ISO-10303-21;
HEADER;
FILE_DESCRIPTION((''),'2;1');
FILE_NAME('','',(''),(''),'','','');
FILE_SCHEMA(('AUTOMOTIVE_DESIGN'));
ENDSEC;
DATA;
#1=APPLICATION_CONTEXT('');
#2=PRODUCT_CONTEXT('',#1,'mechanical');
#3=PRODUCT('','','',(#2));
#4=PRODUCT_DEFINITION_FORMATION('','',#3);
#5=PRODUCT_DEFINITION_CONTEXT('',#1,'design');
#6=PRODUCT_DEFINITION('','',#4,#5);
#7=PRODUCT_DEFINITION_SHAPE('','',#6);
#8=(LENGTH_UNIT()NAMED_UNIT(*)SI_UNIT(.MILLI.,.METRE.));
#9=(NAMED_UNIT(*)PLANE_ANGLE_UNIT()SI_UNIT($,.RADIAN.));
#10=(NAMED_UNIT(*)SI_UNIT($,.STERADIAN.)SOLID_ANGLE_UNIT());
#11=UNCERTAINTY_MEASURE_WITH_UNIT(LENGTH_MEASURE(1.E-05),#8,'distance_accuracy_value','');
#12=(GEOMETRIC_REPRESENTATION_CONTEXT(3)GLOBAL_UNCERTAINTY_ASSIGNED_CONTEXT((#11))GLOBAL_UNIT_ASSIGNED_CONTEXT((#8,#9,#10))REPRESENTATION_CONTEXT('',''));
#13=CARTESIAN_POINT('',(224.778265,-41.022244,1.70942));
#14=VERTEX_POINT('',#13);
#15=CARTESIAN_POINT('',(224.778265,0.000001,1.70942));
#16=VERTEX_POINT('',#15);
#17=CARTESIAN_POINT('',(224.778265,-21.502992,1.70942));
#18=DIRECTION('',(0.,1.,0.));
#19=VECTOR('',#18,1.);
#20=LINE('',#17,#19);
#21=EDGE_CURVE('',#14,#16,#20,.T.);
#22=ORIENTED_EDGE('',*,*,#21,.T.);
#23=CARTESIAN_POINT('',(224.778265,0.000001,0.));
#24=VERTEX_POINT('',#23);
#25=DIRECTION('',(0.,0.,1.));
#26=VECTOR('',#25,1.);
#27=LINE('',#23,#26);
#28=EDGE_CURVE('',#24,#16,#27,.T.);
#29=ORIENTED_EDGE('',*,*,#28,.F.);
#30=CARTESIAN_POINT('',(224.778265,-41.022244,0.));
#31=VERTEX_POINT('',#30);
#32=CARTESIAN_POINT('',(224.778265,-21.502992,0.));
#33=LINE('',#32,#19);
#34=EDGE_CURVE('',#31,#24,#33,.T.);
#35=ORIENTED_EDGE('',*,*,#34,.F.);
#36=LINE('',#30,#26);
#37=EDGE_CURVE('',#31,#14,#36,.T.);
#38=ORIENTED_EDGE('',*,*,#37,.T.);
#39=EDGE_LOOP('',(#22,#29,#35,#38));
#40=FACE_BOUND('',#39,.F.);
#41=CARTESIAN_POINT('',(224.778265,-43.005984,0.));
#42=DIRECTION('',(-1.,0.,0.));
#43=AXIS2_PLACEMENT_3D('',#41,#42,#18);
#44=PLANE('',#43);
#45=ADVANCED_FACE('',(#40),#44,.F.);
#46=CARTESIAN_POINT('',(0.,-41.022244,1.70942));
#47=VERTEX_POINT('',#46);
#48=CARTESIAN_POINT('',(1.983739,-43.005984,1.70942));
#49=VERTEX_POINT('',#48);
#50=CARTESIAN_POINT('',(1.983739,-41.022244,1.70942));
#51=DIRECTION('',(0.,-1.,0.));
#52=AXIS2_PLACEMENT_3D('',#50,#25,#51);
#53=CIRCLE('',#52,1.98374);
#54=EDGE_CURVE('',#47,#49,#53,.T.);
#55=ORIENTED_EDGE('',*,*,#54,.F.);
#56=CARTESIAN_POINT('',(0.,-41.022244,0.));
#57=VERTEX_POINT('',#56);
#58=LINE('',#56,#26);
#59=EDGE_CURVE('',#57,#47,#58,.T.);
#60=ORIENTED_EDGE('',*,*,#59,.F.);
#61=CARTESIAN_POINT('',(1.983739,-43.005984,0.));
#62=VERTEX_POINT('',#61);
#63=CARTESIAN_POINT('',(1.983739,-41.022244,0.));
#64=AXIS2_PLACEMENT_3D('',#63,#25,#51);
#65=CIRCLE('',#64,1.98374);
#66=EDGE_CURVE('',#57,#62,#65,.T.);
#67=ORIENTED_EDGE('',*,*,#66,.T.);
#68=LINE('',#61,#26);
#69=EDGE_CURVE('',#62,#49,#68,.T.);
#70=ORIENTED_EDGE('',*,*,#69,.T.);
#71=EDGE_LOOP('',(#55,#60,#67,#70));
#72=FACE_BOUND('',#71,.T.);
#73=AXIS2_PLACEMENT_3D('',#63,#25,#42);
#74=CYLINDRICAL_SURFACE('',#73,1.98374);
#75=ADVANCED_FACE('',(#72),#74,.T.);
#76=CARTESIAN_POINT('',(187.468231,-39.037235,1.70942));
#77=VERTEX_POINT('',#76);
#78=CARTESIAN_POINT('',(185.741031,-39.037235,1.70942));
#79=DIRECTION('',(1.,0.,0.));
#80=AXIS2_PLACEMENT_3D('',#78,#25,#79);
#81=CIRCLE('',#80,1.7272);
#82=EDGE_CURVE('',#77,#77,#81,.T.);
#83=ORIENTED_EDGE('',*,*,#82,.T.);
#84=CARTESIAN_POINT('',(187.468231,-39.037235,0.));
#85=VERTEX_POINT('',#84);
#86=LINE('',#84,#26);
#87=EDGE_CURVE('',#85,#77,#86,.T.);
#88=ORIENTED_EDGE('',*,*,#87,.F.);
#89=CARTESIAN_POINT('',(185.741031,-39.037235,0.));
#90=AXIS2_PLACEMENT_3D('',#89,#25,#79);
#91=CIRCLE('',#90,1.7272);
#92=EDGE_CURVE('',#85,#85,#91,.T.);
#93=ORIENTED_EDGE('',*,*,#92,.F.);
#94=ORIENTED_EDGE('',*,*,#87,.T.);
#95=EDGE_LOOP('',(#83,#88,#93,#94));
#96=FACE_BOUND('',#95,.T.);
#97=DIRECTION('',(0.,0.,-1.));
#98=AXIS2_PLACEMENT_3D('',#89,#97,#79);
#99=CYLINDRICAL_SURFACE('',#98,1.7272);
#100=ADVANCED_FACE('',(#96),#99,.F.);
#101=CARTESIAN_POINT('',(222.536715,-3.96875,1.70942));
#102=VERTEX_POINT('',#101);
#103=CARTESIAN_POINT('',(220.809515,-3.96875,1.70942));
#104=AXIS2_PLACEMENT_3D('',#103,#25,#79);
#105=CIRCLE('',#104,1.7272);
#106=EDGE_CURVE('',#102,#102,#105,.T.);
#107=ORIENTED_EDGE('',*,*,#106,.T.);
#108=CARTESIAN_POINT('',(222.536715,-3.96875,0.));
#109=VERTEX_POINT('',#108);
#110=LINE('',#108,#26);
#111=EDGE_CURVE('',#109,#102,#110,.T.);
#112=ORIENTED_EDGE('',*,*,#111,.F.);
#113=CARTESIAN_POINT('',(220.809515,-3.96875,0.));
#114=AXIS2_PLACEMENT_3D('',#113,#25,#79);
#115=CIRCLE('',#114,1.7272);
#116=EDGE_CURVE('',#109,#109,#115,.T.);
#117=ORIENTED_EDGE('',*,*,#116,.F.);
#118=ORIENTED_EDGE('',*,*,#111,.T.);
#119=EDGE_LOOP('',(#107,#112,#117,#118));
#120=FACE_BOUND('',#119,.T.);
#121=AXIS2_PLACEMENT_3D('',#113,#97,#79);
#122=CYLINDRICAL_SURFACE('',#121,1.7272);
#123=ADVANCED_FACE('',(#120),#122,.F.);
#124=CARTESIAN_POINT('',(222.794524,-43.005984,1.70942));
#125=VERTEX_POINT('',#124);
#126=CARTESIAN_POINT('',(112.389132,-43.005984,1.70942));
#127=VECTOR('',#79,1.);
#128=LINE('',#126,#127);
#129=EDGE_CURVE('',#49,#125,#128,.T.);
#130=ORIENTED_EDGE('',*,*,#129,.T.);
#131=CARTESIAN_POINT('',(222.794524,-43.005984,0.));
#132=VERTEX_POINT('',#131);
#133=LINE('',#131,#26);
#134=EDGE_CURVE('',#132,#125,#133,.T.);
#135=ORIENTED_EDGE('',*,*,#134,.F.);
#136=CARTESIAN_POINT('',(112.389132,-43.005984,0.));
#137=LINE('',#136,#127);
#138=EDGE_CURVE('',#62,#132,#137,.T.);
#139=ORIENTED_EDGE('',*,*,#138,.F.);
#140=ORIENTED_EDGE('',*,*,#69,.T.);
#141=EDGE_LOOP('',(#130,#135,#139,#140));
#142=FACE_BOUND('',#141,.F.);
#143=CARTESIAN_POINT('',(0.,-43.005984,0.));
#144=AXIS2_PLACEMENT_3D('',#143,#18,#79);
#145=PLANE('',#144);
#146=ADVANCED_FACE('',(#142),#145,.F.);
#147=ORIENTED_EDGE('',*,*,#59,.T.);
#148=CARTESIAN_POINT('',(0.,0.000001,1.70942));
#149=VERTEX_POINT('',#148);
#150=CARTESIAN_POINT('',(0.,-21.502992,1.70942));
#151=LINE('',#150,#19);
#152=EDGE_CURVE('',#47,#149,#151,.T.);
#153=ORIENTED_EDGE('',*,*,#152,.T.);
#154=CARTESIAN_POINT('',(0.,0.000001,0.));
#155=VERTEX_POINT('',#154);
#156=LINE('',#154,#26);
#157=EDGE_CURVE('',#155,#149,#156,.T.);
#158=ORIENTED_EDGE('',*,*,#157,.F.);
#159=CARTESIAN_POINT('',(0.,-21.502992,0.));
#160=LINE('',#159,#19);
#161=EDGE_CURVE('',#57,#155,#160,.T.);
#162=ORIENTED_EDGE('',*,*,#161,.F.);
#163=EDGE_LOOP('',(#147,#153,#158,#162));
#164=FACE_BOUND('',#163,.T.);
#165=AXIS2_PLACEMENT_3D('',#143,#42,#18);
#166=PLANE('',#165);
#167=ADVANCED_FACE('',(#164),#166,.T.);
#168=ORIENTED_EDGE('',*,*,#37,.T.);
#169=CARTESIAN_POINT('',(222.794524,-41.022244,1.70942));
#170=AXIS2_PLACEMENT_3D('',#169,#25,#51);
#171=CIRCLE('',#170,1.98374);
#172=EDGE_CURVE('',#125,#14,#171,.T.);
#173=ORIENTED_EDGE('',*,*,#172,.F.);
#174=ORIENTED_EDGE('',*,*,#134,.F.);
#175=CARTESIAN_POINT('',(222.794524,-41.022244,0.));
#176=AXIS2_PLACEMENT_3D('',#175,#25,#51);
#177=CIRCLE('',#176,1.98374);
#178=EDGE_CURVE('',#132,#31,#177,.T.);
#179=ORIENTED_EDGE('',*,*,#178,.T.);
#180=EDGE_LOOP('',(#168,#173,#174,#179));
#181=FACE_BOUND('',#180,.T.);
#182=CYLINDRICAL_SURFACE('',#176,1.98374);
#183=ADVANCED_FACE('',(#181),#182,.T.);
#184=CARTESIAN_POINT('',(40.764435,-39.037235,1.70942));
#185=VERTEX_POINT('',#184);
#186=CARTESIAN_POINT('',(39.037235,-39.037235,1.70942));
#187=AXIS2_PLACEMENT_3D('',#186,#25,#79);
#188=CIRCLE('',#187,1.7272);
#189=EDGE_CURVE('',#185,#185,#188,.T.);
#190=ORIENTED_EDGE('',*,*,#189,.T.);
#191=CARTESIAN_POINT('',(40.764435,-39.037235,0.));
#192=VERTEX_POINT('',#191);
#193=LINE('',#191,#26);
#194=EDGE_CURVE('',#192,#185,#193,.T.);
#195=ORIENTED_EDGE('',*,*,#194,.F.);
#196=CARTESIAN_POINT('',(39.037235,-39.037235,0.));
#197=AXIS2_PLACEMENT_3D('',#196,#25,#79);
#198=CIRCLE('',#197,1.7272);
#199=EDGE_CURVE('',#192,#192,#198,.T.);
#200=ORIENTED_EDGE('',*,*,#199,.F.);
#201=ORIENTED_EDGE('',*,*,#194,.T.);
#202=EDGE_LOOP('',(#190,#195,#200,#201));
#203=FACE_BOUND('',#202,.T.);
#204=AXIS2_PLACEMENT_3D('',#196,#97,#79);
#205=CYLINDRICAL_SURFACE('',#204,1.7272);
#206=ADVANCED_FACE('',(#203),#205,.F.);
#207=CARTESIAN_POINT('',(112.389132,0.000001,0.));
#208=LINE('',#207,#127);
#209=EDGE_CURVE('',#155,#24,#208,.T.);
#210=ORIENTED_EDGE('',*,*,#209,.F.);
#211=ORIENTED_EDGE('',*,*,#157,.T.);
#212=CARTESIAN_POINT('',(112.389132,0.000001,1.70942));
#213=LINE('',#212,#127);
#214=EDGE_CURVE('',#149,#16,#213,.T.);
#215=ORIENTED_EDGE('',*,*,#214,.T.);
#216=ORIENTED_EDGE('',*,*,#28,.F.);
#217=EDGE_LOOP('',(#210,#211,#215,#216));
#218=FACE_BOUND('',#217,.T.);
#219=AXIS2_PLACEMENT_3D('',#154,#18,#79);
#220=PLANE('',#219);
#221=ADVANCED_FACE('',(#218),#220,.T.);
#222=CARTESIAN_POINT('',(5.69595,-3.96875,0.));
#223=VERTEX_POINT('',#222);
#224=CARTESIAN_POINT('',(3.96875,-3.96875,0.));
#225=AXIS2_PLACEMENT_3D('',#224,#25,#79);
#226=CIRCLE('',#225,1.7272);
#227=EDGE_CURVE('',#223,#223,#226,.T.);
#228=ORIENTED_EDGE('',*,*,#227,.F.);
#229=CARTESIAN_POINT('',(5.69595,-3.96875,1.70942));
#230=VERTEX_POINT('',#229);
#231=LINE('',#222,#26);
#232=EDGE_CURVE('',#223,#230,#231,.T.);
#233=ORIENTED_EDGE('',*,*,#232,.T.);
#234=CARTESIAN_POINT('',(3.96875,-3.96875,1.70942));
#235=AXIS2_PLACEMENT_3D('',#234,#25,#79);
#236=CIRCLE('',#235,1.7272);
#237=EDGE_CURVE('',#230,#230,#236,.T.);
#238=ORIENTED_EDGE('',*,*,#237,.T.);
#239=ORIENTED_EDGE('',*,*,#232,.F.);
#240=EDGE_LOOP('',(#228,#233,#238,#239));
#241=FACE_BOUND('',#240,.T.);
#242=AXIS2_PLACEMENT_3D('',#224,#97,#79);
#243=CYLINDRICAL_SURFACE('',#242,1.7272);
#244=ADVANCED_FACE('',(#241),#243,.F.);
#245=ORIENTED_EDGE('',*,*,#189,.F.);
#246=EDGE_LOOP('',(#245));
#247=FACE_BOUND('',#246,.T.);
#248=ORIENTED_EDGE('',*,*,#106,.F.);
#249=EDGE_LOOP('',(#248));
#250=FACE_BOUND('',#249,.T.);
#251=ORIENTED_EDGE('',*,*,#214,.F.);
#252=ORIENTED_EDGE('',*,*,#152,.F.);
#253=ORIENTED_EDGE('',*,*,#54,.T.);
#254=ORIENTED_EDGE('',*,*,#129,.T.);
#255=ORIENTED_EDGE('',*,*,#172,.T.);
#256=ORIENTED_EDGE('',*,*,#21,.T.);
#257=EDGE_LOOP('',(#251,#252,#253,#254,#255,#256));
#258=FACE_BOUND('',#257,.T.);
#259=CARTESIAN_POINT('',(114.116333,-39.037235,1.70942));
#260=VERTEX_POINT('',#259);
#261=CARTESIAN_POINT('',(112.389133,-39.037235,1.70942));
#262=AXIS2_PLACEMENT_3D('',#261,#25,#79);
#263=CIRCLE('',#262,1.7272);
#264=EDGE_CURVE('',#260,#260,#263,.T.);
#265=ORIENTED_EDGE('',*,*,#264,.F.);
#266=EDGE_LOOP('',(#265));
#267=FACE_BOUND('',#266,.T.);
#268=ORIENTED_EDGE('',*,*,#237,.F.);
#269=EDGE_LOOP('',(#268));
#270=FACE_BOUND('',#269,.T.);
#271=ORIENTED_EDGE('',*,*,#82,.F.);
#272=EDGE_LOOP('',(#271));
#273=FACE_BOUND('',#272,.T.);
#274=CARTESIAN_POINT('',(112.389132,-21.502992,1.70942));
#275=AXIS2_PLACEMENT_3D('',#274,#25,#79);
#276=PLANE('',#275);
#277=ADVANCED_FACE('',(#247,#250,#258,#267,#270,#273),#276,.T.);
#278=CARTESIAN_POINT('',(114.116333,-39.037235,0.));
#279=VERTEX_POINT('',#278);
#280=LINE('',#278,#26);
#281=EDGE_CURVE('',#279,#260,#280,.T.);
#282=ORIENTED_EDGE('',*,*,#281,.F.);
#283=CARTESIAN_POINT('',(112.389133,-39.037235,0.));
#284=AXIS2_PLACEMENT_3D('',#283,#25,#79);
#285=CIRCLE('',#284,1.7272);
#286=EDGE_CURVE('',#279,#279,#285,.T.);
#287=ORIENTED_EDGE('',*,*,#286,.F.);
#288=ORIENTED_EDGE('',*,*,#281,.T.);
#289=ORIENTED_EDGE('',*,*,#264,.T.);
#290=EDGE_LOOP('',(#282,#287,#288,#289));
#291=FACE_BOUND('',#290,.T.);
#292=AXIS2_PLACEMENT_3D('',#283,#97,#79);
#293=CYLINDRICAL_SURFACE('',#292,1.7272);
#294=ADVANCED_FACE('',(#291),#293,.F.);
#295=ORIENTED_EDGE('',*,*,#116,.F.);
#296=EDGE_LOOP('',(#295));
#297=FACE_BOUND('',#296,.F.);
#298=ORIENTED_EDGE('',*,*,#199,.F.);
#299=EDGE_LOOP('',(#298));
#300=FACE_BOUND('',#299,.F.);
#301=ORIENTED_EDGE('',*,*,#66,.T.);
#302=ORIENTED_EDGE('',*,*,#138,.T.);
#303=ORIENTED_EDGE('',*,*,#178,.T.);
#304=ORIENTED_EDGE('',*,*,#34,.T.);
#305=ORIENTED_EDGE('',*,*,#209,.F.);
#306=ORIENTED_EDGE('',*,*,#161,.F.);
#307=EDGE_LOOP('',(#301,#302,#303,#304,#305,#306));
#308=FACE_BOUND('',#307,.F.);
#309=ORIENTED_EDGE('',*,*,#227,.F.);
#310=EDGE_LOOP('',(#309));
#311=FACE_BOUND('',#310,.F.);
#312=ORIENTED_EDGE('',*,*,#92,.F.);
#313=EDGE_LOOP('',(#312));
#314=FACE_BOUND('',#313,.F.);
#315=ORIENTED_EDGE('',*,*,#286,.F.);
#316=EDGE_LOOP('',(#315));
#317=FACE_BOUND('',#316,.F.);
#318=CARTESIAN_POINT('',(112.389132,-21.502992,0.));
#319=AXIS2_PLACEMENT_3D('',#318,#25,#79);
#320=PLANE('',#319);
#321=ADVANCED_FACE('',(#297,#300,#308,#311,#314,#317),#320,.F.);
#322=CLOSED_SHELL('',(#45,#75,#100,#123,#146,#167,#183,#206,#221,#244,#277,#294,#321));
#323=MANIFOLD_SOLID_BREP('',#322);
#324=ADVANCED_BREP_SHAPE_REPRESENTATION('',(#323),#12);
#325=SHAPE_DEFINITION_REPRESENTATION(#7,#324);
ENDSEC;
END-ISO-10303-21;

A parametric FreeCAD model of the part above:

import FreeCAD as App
import Part
import Sketcher
from FreeCAD import Vector
Q = App.Units.Quantity


def edges_at(feature, points):
    """Names of the edges that pass closest to the given points."""
    edges = feature.Shape.Edges
    near = lambda p: min(range(len(edges)), key=lambda i: edges[i].distToShape(Part.Vertex(*p))[0])
    return sorted({f"Edge{near(p) + 1}" for p in points})


def add_polygon(sketch, points):
    """Adds a closed chain of lines whose ends are joined by coincident constraints."""
    first, n = sketch.GeometryCount, len(points)
    for a, b in zip(points, points[1:] + points[:1]):
        sketch.addGeometry(Part.LineSegment(App.Vector(*a, 0), App.Vector(*b, 0)), False)
    for i in range(n):
        sketch.addConstraint(Sketcher.Constraint("Coincident", first + i, 2, first + (i + 1) % n, 1))

doc = App.newDocument("Part")
body = doc.addObject("PartDesign::Body", "Body")

sketch1 = body.newObject("Sketcher::SketchObject", "Sketch")
sketch1.AttachmentSupport = (doc.getObject("XY_Plane"), [""])
sketch1.MapMode = "FlatFace"
add_polygon(sketch1, [(0, 0), (0, -43), (224.8, -43), (224.8, 0)])
sketch1.addGeometry(Part.Circle(Vector(39, -39, 0), Vector(0, 0, 1), 1.7), False)
sketch1.addGeometry(Part.Circle(Vector(112.4, -39, 0), Vector(0, 0, 1), 1.7), False)
sketch1.addGeometry(Part.Circle(Vector(185.7, -39, 0), Vector(0, 0, 1), 1.7), False)
sketch1.addGeometry(Part.Circle(Vector(4, -4, 0), Vector(0, 0, 1), 1.7), False)
sketch1.addGeometry(Part.Circle(Vector(220.8, -4, 0), Vector(0, 0, 1), 1.7), False)
sketch1.addConstraint([
    Sketcher.Constraint("Vertical", 0),
    Sketcher.Constraint("Horizontal", 1),
    Sketcher.Constraint("Vertical", 2),
    Sketcher.Constraint("Horizontal", 3),
    Sketcher.Constraint("Coincident", 3, 2, -1, 1),
    Sketcher.Constraint("Equal", 4, 5),
    Sketcher.Constraint("Equal", 5, 6),
    Sketcher.Constraint("Equal", 6, 7),
    Sketcher.Constraint("Equal", 7, 8),
    Sketcher.Constraint("Horizontal", 4, 3, 5, 3),
    Sketcher.Constraint("Horizontal", 5, 3, 6, 3),
    Sketcher.Constraint("Horizontal", 7, 3, 8, 3),
    Sketcher.Constraint("Diameter", 4, Q("0.136 in")),
    Sketcher.Constraint("DistanceX", -1, 1, 7, 3, Q("0.15625 in")),
    Sketcher.Constraint("DistanceY", 7, 3, -1, 1, Q("0.15625 in")),
    Sketcher.Constraint("DistanceY", 0, 2, 4, 3, Q("0.15625 in")),
    Sketcher.Constraint("DistanceX", 8, 3, 1, 2, Q("0.15625 in")),
    Sketcher.Constraint("DistanceX", 4, 3, 5, 3, 73.351898),
    Sketcher.Constraint("DistanceX", 1, 1, 1, 2, 224.778265),
    Sketcher.Constraint("DistanceY", 0, 2, 0, 1, 43.005985),
    Sketcher.Constraint("DistanceX", -1, 1, 6, 3, 185.741031),
    Sketcher.Constraint("DistanceX", 4, 3, 8, 3, 181.77228),
])
pad1 = body.newObject("PartDesign::Pad", "Pad")
pad1.Profile = sketch1
pad1.Length = Q("0.0673 in")
doc.recompute()

fillet = body.newObject("PartDesign::Fillet", "Fillet")
fillet.Base = (pad1, edges_at(pad1, [(0, -43.006, 0.855), (224.778, -43.006, 0.855)]))
fillet.Radius = Q("0.0781 in")

doc.recompute()
